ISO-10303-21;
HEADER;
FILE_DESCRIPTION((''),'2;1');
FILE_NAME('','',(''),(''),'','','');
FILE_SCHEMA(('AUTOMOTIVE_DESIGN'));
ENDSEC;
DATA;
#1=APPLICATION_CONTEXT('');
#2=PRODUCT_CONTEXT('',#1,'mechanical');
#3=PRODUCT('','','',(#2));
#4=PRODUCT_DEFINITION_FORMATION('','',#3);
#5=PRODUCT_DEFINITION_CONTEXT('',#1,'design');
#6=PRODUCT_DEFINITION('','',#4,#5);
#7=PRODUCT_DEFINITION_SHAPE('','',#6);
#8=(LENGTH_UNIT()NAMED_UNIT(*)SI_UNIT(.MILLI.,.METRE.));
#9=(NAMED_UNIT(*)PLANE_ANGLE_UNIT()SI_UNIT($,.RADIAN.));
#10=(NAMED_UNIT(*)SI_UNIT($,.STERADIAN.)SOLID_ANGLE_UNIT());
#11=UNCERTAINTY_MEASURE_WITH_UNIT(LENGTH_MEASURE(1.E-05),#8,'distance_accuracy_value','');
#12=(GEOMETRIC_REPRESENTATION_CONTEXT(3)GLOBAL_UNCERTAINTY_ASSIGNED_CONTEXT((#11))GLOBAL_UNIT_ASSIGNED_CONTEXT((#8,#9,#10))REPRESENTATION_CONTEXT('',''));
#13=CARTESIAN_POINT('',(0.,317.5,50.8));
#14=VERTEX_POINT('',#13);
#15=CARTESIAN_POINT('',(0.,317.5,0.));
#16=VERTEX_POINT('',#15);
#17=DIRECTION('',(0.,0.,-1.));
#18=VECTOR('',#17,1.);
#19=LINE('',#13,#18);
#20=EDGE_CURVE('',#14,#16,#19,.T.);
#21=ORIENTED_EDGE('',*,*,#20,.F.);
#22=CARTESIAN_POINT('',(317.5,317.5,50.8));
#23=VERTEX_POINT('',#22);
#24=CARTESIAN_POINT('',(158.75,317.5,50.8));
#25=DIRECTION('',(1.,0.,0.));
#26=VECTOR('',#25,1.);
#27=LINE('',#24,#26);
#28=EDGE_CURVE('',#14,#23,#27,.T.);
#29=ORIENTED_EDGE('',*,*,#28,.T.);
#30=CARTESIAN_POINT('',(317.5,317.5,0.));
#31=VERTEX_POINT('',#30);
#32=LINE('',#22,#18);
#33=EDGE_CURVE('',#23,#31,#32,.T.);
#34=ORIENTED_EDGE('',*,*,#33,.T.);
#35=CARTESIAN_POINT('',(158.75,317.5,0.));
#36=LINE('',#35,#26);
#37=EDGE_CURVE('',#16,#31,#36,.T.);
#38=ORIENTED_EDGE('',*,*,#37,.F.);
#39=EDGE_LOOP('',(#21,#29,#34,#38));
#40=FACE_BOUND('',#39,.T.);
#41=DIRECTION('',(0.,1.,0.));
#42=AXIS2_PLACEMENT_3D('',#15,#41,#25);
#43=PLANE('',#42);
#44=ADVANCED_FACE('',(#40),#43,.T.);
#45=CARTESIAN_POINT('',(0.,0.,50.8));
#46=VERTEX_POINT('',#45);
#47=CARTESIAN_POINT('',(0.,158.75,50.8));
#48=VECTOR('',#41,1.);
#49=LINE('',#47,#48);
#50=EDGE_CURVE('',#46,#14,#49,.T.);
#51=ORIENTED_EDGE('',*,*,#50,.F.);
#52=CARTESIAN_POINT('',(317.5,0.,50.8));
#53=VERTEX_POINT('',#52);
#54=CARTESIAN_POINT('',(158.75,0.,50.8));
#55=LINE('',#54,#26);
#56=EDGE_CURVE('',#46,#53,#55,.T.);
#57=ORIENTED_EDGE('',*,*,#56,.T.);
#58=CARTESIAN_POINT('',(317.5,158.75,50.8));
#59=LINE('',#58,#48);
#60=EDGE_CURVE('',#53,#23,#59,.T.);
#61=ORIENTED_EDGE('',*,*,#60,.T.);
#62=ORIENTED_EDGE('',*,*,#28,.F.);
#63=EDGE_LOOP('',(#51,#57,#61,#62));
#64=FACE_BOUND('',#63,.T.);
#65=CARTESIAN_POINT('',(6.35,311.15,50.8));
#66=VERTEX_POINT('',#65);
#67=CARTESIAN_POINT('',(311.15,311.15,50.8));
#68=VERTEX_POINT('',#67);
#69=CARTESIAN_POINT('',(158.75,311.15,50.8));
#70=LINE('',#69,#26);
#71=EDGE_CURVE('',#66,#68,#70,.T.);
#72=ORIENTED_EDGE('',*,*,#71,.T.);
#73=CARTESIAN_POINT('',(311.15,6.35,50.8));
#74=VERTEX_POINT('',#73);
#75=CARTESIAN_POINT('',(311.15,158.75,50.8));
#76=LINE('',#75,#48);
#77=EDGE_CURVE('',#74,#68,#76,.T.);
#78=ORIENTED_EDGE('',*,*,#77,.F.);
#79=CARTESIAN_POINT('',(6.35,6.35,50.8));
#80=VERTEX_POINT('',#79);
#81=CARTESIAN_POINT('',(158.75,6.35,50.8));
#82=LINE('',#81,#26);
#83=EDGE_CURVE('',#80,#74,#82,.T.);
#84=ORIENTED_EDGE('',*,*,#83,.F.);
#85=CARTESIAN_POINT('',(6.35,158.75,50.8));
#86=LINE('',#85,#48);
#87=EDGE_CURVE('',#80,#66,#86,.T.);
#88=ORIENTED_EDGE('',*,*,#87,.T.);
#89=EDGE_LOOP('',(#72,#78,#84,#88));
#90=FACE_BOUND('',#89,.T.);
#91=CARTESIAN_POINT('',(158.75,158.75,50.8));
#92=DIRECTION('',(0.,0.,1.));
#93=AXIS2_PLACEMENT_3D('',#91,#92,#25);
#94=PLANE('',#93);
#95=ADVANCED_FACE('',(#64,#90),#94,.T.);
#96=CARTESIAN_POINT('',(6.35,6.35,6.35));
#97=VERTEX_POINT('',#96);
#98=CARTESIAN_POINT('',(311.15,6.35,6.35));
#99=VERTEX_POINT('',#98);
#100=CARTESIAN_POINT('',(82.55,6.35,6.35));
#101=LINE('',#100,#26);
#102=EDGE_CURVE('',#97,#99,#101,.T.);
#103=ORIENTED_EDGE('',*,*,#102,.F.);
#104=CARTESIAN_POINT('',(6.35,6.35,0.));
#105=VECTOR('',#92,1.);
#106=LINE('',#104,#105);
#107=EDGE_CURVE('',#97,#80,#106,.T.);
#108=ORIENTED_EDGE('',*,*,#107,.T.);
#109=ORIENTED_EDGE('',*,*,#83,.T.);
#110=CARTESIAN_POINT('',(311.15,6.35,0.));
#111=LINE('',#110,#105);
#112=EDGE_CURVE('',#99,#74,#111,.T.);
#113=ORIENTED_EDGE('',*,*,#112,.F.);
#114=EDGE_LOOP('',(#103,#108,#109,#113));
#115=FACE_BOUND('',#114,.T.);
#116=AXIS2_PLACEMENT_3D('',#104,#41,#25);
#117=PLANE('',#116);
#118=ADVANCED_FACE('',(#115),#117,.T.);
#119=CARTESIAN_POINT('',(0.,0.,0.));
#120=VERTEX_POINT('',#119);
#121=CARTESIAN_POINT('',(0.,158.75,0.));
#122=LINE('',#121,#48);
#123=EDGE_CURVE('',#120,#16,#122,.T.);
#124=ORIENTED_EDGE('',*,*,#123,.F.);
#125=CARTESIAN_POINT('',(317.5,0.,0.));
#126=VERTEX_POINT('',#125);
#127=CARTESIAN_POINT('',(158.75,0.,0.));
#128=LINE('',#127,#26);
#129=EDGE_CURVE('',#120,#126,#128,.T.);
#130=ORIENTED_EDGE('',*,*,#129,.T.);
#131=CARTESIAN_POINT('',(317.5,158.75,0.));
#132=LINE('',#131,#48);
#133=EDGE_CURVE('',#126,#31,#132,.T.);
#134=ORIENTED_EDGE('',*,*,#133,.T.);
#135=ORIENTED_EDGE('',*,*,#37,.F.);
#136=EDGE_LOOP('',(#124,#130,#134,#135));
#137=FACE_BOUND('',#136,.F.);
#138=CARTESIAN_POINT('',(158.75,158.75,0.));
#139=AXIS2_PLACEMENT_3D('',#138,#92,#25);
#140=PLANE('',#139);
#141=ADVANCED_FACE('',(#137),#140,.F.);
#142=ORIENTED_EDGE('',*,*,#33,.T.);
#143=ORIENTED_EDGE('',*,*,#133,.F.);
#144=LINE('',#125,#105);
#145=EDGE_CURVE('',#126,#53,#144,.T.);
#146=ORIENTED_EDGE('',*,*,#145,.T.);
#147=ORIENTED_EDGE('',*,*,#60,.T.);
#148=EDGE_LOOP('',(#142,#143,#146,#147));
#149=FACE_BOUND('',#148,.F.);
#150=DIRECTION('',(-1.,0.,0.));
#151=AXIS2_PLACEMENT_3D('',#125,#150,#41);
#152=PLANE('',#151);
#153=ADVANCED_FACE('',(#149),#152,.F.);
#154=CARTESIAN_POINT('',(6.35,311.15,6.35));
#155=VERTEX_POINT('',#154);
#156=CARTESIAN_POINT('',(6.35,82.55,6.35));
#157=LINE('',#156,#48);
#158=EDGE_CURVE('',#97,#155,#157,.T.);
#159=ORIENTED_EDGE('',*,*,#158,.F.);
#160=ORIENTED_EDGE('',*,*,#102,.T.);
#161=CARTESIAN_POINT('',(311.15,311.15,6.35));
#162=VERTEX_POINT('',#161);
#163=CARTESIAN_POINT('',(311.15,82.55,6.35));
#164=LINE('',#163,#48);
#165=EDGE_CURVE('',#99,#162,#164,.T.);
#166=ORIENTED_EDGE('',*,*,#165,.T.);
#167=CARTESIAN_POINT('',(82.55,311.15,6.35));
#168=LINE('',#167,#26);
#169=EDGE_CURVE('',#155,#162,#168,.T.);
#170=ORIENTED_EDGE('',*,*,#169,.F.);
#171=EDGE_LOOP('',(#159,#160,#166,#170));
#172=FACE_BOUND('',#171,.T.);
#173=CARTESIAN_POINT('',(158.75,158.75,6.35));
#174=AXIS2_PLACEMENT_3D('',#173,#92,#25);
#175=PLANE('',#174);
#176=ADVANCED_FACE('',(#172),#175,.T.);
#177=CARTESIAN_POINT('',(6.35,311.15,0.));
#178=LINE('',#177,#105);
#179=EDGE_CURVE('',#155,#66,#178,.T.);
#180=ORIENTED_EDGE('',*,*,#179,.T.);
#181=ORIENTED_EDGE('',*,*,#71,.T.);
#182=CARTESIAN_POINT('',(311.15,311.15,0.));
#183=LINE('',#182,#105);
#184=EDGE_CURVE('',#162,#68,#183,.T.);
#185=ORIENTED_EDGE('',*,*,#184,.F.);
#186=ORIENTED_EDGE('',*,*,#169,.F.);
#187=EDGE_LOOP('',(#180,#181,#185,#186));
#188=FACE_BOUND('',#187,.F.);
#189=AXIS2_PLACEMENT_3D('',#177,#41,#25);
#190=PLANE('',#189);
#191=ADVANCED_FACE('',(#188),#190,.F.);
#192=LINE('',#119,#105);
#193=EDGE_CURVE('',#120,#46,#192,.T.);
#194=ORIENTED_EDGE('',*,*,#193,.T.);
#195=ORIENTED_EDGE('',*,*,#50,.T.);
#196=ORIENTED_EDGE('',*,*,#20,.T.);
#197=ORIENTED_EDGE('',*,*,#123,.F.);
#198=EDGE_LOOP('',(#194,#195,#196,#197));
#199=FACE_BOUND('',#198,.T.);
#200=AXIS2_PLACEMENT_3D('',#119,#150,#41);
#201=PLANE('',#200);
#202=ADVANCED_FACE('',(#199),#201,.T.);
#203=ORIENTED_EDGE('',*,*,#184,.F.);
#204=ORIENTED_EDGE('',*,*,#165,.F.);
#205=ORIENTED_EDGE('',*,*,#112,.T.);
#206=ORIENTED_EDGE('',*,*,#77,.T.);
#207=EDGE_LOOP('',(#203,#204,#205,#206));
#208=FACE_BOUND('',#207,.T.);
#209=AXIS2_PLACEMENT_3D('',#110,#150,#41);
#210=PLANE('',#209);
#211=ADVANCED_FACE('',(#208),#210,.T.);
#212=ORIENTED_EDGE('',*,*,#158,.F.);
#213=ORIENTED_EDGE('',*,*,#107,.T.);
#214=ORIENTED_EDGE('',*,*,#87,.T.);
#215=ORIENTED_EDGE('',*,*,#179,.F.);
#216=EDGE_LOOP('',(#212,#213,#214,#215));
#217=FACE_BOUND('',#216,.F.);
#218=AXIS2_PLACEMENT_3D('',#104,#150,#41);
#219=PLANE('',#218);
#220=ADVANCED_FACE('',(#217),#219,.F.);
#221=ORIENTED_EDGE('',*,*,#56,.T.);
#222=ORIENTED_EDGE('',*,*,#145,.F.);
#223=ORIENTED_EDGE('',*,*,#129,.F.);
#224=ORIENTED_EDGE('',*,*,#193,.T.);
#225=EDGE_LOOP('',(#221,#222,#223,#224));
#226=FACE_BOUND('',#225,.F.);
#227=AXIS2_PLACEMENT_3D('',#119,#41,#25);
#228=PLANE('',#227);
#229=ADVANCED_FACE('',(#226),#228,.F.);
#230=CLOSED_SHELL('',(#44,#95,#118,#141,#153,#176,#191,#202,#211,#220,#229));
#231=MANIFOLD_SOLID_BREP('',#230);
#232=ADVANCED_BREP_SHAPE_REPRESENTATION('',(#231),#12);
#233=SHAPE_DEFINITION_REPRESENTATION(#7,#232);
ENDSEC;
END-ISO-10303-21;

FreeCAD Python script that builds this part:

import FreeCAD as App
import Part
import Sketcher

V = App.Vector
Q = App.Units.Quantity


def add_polygon(sketch, points):
    """Adds a closed chain of lines whose ends are joined by coincident constraints."""
    first, n = sketch.GeometryCount, len(points)
    for a, b in zip(points, points[1:] + points[:1]):
        sketch.addGeometry(Part.LineSegment(App.Vector(*a, 0), App.Vector(*b, 0)), False)
    for i in range(n):
        sketch.addConstraint(Sketcher.Constraint("Coincident", first + i, 2, first + (i + 1) % n, 1))

doc = App.newDocument("Part")
body = doc.addObject("PartDesign::Body", "Body")

sketch1 = body.newObject("Sketcher::SketchObject", "Sketch")
sketch1.AttachmentSupport = (doc.getObject("XY_Plane"), [""])
sketch1.MapMode = "FlatFace"
add_polygon(sketch1, [(0, 317.5), (0, 0), (317.5, 0), (317.5, 317.5)])
add_polygon(sketch1, [(311.15, 6.35), (6.35, 6.35), (6.35, 311.15), (311.15, 311.15)])
sketch1.addConstraint([
    Sketcher.Constraint("Vertical", 0),
    Sketcher.Constraint("Horizontal", 1),
    Sketcher.Constraint("Vertical", 2),
    Sketcher.Constraint("Horizontal", 3),
    Sketcher.Constraint("Horizontal", 4),
    Sketcher.Constraint("Vertical", 5),
    Sketcher.Constraint("Horizontal", 6),
    Sketcher.Constraint("Vertical", 7),
    Sketcher.Constraint("Coincident", 0, 2, -1, 1),
    Sketcher.Constraint("Equal", 3, 0),
    Sketcher.Constraint("Equal", 6, 5),
    Sketcher.Constraint("DistanceX", 4, 2, 4, 1, Q("12 in")),
    Sketcher.Constraint("DistanceX", 1, 1, 1, 2, Q("12.5 in")),
    Sketcher.Constraint("DistanceX", -1, 1, 4, 2, Q("0.25 in")),
    Sketcher.Constraint("DistanceY", -1, 1, 4, 2, Q("0.25 in")),
])
pad1 = body.newObject("PartDesign::Pad", "Pad")
pad1.Profile = sketch1
pad1.Length = Q("2 in")

sketch2 = body.newObject("Sketcher::SketchObject", "Sketch001")
sketch2.AttachmentSupport = (doc.getObject("XY_Plane"), [""])
sketch2.MapMode = "FlatFace"
add_polygon(sketch2, [(0, 317.5), (0, 0), (317.5, 0), (317.5, 317.5)])
sketch2.addConstraint([
    Sketcher.Constraint("Vertical", 0),
    Sketcher.Constraint("Horizontal", 1),
    Sketcher.Constraint("Vertical", 2),
    Sketcher.Constraint("Horizontal", 3),
    Sketcher.Constraint("Coincident", 0, 2, -1, 1),
    Sketcher.Constraint("Equal", 3, 0),
    Sketcher.Constraint("DistanceX", 1, 1, 1, 2, Q("12.5 in")),
])
pad2 = body.newObject("PartDesign::Pad", "Pad001")
pad2.Profile = sketch2
pad2.Length = Q("0.25 in")

doc.recompute()
